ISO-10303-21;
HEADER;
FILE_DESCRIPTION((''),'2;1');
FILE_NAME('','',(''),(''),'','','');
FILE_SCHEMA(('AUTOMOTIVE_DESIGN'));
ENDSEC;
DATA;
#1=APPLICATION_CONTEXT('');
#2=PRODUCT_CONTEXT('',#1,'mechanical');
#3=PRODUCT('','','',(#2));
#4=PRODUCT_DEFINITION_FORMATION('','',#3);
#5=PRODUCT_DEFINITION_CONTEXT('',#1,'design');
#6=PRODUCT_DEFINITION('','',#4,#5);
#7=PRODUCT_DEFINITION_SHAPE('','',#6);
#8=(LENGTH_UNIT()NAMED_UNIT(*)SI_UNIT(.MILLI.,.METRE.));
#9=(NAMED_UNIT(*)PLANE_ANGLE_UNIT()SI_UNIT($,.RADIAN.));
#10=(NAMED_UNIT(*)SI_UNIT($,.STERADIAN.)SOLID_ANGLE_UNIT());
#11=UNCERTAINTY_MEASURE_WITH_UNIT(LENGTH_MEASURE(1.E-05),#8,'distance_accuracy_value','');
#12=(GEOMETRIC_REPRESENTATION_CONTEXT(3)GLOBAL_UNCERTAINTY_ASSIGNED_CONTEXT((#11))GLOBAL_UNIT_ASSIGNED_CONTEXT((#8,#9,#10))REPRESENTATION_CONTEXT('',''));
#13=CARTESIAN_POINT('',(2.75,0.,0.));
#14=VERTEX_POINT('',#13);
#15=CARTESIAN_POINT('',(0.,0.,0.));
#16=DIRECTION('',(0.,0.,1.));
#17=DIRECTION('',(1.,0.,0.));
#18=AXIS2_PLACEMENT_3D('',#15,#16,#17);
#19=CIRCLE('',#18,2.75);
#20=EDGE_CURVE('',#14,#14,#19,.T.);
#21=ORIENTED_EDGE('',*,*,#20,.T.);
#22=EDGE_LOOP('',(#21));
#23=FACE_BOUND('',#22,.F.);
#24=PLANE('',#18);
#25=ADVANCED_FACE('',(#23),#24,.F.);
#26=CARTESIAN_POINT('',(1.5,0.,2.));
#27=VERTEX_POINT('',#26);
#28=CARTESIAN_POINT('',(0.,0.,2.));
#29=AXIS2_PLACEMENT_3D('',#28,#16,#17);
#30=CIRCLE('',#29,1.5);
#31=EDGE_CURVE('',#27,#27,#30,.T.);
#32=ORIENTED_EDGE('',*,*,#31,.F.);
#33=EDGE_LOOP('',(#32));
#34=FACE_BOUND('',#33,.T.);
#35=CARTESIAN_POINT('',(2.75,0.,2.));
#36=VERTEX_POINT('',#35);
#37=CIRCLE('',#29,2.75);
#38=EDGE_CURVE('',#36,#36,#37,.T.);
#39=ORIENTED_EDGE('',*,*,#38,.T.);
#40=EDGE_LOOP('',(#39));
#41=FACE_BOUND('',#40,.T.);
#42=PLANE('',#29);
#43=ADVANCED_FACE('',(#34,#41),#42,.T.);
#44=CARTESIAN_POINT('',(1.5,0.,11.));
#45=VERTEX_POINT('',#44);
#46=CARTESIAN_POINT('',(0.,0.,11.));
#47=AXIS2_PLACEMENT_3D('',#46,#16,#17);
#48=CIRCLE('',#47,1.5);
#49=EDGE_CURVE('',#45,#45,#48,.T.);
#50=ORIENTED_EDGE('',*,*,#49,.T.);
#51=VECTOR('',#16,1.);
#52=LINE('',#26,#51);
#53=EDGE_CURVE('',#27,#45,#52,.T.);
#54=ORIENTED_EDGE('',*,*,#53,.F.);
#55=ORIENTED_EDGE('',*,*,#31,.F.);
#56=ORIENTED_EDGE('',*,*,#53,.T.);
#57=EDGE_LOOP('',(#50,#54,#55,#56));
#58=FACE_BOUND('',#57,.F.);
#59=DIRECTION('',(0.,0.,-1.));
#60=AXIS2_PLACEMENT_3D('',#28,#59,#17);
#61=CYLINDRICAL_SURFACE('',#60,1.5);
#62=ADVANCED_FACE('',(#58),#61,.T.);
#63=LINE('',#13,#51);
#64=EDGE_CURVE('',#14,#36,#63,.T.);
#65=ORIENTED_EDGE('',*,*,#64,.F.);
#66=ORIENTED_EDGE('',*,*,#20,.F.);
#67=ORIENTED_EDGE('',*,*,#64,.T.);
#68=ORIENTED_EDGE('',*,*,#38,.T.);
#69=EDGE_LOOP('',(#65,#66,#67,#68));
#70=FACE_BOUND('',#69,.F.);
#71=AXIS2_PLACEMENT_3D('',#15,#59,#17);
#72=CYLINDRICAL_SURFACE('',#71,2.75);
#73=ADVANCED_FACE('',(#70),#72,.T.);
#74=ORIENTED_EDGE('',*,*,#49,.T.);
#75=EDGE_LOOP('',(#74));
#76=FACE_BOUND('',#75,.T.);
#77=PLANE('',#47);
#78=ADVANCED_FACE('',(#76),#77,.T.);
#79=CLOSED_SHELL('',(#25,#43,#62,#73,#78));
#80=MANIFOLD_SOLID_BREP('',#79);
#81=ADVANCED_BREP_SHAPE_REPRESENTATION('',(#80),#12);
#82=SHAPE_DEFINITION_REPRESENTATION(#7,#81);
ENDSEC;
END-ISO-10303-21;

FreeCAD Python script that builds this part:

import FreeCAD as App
import Part
import Sketcher

V = App.Vector

doc = App.newDocument("Part")
body = doc.addObject("PartDesign::Body", "Body")

# Sketch on XY plane
sketch1 = body.newObject("Sketcher::SketchObject", "Sketch")
sketch1.AttachmentSupport = (doc.getObject("XY_Plane"), [""])
sketch1.MapMode = "FlatFace"
sketch1.addGeometry(Part.Circle(V(0, 0, 0), V(0, 0, 1), 2.8), False)
sketch1.addConstraint([
    Sketcher.Constraint("Coincident", 0, 3, -1, 1),
    Sketcher.Constraint("Diameter", 0, 5.5),
])
pad1 = body.newObject("PartDesign::Pad", "Pad")
pad1.Profile = sketch1
pad1.Length = 2

# Sketch on XY plane
sketch2 = body.newObject("Sketcher::SketchObject", "Sketch001")
sketch2.AttachmentSupport = (doc.getObject("XY_Plane"), [""])
sketch2.MapMode = "FlatFace"
sketch2.AttachmentOffset = App.Placement(V(0, 0, 2), App.Rotation())
sketch2.addGeometry(Part.Circle(V(0, 0, 0), V(0, 0, 1), 1.5), False)
sketch2.addConstraint([
    Sketcher.Constraint("Coincident", 0, 3, -1, 1),
    Sketcher.Constraint("Diameter", 0, 3.0),
])
pad2 = body.newObject("PartDesign::Pad", "Pad001")
pad2.Profile = sketch2
pad2.Length = 9

doc.recompute()
